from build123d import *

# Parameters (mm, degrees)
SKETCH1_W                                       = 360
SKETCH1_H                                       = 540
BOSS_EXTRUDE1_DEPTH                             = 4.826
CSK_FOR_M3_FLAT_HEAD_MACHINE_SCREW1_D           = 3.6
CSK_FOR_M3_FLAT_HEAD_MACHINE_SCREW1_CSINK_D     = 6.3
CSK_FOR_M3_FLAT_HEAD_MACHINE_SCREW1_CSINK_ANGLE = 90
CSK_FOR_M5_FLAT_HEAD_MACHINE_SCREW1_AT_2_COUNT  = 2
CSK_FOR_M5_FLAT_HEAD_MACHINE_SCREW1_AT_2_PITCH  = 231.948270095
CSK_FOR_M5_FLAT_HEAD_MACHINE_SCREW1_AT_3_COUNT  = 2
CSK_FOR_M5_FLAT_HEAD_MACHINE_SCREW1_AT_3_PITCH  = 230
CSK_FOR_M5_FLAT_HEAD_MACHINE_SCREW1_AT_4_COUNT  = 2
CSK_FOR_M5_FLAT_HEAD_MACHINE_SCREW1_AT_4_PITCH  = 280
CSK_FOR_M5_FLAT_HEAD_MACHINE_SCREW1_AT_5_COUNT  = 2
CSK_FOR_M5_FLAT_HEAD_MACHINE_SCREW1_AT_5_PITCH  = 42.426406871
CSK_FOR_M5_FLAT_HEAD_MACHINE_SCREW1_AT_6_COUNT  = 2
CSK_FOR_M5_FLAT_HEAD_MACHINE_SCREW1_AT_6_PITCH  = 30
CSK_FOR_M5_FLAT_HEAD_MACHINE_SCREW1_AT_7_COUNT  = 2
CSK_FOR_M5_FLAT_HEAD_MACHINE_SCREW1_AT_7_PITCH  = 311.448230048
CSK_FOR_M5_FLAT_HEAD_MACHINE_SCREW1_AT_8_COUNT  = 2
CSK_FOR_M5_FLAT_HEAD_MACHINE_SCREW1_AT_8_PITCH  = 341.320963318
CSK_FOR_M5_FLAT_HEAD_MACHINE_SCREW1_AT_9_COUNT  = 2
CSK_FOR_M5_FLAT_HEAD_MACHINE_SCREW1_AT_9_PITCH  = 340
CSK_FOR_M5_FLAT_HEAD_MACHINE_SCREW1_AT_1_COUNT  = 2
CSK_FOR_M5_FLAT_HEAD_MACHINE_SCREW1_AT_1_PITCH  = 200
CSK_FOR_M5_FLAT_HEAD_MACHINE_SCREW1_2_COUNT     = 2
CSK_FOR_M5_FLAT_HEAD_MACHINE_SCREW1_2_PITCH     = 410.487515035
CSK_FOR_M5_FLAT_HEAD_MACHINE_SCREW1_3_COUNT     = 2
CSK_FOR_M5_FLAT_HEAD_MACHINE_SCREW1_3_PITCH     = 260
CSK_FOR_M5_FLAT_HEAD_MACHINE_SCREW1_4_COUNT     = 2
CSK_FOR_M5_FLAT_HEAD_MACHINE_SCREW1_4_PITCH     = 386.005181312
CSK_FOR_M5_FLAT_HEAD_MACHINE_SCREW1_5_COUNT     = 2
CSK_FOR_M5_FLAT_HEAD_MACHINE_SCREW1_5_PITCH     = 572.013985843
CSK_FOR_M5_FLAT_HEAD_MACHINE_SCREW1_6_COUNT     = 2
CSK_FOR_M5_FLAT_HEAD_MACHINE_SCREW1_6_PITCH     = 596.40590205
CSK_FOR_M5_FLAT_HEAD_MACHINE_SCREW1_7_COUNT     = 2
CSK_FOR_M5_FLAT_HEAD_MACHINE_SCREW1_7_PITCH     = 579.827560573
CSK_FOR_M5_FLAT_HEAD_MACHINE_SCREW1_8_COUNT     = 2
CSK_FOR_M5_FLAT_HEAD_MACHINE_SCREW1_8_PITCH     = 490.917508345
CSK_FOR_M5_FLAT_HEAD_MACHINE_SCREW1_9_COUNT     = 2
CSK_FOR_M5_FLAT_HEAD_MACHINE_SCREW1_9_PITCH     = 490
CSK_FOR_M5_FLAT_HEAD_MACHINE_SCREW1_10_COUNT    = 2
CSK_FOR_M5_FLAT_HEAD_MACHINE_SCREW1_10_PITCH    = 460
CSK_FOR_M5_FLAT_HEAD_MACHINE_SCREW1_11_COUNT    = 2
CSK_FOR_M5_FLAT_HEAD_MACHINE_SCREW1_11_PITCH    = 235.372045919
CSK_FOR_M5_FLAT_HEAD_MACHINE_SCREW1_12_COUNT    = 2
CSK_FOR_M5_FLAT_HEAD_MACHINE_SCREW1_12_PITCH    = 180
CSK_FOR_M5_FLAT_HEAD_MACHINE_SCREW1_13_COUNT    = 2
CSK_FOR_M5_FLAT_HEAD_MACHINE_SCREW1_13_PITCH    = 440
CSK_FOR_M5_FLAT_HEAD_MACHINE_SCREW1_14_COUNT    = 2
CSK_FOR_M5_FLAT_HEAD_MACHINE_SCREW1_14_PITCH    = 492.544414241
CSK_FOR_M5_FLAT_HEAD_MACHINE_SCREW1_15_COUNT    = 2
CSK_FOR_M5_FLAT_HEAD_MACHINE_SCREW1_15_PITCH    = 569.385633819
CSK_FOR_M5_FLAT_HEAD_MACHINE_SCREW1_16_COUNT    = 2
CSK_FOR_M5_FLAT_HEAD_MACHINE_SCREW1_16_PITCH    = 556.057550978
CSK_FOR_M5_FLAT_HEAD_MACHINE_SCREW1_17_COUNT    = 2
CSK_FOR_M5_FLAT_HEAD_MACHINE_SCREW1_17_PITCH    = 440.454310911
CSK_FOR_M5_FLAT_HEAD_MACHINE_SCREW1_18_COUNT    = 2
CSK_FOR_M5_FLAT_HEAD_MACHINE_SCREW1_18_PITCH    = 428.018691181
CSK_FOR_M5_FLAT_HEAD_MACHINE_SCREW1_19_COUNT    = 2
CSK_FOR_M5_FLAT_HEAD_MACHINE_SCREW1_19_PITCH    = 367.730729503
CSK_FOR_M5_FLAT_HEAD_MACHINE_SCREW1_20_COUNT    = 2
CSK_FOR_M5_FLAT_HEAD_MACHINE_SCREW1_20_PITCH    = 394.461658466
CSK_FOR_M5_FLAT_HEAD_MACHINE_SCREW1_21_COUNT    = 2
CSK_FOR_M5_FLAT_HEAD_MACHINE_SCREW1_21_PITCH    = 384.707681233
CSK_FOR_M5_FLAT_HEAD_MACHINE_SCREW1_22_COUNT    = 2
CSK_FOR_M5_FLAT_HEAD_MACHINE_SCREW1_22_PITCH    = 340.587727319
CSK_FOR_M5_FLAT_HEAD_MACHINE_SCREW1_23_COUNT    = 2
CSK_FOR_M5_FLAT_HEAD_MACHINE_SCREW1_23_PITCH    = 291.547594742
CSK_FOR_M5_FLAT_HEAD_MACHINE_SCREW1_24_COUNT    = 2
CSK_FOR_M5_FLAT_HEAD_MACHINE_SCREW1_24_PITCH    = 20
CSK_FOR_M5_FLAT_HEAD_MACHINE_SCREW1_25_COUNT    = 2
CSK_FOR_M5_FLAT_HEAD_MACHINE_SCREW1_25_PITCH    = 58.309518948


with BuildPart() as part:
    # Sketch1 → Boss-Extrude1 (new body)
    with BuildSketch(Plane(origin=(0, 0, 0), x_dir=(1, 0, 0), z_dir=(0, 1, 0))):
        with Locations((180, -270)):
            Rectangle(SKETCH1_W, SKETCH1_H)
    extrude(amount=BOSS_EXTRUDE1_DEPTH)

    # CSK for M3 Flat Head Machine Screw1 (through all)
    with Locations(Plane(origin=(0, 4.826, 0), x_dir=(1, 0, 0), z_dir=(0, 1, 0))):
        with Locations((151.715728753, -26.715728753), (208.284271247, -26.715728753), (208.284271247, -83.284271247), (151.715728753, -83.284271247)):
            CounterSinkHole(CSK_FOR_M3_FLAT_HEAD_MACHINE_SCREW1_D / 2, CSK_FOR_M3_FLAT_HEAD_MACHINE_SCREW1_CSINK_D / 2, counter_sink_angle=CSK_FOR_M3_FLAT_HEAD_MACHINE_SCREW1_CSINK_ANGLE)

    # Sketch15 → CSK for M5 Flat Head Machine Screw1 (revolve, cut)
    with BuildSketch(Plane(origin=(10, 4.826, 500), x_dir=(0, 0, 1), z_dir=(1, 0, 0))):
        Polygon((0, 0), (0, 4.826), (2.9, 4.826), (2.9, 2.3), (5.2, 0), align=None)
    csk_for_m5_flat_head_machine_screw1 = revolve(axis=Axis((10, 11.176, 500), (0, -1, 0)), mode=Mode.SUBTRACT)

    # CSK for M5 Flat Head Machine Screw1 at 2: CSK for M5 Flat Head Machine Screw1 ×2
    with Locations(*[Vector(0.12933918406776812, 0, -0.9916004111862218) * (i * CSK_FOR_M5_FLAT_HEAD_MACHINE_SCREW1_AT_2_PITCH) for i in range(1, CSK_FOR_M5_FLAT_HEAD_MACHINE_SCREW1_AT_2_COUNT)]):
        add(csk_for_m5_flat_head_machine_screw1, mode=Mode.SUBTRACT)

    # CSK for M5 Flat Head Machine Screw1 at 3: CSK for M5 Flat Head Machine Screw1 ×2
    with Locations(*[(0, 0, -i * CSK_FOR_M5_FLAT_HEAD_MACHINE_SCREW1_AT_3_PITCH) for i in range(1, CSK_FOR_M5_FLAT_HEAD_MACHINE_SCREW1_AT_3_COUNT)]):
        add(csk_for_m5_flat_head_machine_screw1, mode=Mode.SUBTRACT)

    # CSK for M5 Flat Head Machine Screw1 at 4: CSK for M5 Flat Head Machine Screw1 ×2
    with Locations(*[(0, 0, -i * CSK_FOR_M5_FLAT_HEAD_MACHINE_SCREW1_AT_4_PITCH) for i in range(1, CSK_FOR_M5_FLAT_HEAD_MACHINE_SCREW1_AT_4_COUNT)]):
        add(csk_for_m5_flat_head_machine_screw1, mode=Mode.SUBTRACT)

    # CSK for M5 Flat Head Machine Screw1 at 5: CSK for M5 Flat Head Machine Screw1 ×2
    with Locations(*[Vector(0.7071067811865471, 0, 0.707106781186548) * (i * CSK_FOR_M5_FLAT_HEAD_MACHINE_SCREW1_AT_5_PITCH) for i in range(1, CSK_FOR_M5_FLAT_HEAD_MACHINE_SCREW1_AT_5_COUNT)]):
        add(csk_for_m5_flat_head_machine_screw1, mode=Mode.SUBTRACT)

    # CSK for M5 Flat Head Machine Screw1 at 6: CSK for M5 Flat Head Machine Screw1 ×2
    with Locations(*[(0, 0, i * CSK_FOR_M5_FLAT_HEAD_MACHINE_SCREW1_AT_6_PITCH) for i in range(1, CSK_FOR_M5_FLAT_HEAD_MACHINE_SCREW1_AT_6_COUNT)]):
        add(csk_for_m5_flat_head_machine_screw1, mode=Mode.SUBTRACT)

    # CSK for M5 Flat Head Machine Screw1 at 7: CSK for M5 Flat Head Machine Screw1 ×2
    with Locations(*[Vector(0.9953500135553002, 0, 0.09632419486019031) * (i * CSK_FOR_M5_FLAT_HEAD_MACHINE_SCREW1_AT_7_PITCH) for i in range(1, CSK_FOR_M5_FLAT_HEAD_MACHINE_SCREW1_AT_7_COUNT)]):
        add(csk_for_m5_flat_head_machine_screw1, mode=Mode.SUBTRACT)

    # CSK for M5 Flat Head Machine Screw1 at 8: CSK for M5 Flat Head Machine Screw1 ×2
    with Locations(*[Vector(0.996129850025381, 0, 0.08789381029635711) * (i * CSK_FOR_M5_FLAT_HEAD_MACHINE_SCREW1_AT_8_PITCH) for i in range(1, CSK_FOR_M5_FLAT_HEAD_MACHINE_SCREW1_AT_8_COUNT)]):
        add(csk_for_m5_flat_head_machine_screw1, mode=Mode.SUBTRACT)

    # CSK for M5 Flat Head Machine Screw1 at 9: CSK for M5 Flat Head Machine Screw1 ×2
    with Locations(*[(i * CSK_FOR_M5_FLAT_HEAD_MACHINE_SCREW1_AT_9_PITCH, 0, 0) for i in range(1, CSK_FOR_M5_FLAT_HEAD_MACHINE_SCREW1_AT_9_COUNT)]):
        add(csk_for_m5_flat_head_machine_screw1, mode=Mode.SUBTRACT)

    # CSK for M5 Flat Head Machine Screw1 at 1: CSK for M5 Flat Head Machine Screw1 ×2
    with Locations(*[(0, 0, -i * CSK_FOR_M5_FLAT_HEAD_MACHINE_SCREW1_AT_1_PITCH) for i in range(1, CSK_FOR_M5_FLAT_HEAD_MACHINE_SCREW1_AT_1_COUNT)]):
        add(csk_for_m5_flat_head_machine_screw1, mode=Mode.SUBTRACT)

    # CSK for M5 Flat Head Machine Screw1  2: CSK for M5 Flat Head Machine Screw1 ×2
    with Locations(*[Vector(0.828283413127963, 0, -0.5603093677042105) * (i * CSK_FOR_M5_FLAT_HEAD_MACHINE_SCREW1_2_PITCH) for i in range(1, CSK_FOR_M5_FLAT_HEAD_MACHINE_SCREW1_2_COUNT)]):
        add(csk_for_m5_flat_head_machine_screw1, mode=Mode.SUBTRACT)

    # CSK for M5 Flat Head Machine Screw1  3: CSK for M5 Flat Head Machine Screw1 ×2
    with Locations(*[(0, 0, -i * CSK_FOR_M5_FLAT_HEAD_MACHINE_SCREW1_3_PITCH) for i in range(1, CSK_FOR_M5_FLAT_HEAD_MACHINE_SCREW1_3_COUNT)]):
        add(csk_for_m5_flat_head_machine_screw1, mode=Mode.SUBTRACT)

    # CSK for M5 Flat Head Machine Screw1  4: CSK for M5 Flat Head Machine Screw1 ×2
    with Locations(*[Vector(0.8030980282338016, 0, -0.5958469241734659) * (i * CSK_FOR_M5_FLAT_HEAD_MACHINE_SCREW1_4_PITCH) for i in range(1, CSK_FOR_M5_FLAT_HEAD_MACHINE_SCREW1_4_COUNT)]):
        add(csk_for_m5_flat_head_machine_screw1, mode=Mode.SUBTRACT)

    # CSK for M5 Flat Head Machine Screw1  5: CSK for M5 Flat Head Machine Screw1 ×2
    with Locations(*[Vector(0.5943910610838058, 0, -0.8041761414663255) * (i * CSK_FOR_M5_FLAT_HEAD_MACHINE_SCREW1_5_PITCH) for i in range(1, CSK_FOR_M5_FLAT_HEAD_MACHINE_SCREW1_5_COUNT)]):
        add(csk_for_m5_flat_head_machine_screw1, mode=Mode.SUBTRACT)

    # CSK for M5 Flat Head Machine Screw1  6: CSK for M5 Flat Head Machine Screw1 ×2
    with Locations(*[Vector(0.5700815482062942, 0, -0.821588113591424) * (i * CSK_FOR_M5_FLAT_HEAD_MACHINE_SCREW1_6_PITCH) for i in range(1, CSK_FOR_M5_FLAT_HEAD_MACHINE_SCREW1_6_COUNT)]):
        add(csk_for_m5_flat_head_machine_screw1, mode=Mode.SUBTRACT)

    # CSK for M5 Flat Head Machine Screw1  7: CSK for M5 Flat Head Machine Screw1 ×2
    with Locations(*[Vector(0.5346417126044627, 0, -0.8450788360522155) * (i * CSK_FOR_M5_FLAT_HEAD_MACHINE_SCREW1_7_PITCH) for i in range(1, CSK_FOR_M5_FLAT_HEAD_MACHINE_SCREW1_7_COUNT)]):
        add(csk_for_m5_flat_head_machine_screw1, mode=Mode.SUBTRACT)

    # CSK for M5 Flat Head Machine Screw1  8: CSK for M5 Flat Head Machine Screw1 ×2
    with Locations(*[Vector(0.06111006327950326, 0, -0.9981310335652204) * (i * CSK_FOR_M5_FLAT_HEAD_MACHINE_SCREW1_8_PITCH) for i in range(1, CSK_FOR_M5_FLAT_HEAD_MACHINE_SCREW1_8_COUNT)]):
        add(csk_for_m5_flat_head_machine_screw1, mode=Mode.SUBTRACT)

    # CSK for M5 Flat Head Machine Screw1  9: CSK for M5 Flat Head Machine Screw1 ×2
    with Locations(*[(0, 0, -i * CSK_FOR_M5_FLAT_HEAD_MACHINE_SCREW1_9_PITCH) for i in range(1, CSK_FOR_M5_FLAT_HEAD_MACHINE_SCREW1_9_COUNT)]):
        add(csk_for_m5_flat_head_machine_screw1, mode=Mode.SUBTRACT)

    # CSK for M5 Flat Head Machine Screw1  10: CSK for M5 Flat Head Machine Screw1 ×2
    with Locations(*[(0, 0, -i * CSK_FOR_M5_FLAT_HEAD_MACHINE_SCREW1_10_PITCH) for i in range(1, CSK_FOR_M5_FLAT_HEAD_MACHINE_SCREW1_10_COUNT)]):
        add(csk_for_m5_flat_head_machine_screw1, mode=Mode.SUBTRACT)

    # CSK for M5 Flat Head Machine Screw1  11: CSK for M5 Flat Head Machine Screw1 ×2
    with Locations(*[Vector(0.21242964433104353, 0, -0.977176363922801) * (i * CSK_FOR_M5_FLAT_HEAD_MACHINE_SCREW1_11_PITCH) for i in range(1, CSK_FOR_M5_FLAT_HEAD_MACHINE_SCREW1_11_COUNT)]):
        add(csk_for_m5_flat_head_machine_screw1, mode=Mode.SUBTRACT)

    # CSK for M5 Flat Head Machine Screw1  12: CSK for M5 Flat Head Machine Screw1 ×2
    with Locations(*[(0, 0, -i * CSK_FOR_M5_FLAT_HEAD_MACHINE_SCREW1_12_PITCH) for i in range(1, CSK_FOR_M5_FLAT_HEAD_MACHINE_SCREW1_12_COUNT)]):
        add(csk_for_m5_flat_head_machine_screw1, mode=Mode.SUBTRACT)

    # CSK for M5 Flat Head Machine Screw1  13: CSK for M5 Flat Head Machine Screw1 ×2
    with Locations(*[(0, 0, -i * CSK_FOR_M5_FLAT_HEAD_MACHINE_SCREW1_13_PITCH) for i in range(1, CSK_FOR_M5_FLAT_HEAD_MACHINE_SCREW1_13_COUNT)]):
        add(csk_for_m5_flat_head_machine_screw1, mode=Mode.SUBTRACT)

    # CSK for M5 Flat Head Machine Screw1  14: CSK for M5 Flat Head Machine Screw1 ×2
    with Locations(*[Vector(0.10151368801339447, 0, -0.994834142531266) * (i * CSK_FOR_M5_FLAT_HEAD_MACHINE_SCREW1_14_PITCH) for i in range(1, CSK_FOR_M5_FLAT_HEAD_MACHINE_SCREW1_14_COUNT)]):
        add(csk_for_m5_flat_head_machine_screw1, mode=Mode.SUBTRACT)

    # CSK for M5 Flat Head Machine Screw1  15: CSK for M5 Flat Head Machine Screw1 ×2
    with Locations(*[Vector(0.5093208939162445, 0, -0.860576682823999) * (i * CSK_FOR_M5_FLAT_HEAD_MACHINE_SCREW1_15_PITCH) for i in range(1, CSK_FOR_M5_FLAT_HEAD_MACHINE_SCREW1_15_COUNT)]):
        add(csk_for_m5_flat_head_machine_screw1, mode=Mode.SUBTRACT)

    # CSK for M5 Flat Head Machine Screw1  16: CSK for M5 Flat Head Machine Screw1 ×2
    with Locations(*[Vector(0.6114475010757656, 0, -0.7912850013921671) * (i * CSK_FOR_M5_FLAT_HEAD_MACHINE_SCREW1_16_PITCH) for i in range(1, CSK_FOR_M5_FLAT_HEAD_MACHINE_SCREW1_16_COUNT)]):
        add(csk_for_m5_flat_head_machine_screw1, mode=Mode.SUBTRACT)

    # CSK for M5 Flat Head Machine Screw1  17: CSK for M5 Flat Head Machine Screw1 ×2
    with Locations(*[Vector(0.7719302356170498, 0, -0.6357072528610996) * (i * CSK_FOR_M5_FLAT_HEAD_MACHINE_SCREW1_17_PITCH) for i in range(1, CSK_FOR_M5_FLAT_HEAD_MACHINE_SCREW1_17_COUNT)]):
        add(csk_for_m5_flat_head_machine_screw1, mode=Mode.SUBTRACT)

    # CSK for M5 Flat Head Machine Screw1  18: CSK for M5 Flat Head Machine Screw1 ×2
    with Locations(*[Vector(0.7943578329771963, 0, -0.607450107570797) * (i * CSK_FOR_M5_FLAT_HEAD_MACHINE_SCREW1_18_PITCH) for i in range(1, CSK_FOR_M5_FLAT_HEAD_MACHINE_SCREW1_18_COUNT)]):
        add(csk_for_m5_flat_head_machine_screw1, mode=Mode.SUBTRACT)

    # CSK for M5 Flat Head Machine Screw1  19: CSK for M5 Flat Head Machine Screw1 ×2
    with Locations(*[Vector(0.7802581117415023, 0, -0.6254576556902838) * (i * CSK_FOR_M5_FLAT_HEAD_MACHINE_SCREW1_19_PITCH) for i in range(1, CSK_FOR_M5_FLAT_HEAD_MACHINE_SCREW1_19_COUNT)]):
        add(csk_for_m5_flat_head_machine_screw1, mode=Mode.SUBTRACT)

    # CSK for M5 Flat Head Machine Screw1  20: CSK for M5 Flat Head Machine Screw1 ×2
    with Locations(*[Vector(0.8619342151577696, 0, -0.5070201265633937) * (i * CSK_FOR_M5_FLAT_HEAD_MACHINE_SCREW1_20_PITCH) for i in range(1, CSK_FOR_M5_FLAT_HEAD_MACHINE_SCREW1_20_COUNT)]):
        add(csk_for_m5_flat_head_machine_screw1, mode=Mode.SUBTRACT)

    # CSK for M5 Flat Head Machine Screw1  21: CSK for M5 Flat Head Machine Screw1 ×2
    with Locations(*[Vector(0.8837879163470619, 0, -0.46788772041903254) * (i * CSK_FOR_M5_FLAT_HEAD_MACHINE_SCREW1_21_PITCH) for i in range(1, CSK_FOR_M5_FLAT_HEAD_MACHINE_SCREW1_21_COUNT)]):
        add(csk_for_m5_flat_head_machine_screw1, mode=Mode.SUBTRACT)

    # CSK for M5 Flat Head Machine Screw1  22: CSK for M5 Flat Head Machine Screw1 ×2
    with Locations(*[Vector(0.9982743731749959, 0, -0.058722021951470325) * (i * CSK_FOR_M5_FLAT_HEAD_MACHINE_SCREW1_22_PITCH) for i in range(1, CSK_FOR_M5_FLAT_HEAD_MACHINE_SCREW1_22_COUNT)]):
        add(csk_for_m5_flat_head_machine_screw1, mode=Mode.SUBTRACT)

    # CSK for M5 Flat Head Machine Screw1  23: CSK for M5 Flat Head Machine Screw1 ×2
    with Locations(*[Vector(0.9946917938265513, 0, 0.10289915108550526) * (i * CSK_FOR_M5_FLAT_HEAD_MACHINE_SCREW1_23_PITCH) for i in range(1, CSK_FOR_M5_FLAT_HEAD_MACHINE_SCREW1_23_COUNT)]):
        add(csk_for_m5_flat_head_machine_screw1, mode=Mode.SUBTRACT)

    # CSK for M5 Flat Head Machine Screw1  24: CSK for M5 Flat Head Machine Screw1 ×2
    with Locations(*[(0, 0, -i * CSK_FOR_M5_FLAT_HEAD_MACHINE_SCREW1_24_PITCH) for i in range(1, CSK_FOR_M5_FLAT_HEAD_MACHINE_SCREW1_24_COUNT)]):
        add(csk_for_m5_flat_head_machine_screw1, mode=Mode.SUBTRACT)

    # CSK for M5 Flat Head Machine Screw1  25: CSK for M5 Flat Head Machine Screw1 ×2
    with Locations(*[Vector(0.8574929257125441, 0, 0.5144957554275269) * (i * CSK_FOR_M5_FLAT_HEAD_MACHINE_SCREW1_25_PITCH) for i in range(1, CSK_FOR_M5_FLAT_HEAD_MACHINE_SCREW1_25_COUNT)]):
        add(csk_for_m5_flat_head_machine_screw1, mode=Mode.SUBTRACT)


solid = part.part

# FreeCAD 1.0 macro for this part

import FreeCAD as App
import Part
import Sketcher
Q = App.Units.Quantity

doc = App.newDocument("Part")
body = doc.addObject("PartDesign::Body", "Body")

sketch1 = body.newObject("Sketcher::SketchObject", "Sketch")
sketch1.AttachmentSupport = (doc.getObject("XZ_Plane"), [""])
sketch1.MapMode = "FlatFace"
sketch1.addGeometry(Part.LineSegment(App.Vector(0, 0, 0), App.Vector(0, 540, 0)), False)
sketch1.addGeometry(Part.LineSegment(App.Vector(0, 540, 0), App.Vector(360, 540, 0)), False)
sketch1.addGeometry(Part.LineSegment(App.Vector(360, 540, 0), App.Vector(360, 0, 0)), False)
sketch1.addGeometry(Part.LineSegment(App.Vector(360, 0, 0), App.Vector(0, 0, 0)), False)
sketch1.addConstraint(Sketcher.Constraint("Coincident", 0, 2, 1, 1))
sketch1.addConstraint(Sketcher.Constraint("Coincident", 1, 2, 2, 1))
sketch1.addConstraint(Sketcher.Constraint("Coincident", 2, 2, 3, 1))
sketch1.addConstraint(Sketcher.Constraint("Coincident", 3, 2, 0, 1))
sketch1.addConstraint(Sketcher.Constraint("Vertical", 0))
sketch1.addConstraint(Sketcher.Constraint("Horizontal", 1))
sketch1.addConstraint(Sketcher.Constraint("Vertical", 2))
sketch1.addConstraint(Sketcher.Constraint("Horizontal", 3))
sketch1.addConstraint(Sketcher.Constraint("Coincident", 3, 2, -1, 1))
sketch1.addConstraint(Sketcher.Constraint("DistanceX", 1, 1, 1, 2, 360.0))
sketch1.addConstraint(Sketcher.Constraint("DistanceY", 0, 1, 0, 2, 540.0))
pad1 = body.newObject("PartDesign::Pad", "Pad")
pad1.Profile = sketch1
pad1.Length = 4.826
pad1.Reversed = True

sketch2 = body.newObject("Sketcher::SketchObject", "Sketch001")
sketch2.AttachmentSupport = (doc.getObject("XZ_Plane"), [""])
sketch2.MapMode = "FlatFace"
sketch2.AttachmentOffset = App.Placement(App.Vector(0, 0, -4.826), App.Rotation())
sketch2.addGeometry(Part.Circle(App.Vector(151.7, 26.7, 0), App.Vector(0, 0, 1), 1.8), False)
sketch2.addGeometry(Part.Circle(App.Vector(208.3, 26.7, 0), App.Vector(0, 0, 1), 1.8), False)
sketch2.addGeometry(Part.Circle(App.Vector(208.3, 83.3, 0), App.Vector(0, 0, 1), 1.8), False)
sketch2.addGeometry(Part.Circle(App.Vector(151.7, 83.3, 0), App.Vector(0, 0, 1), 1.8), False)
sketch2.addConstraint(Sketcher.Constraint("Equal", 0, 1))
sketch2.addConstraint(Sketcher.Constraint("Equal", 1, 2))
sketch2.addConstraint(Sketcher.Constraint("Equal", 2, 3))
sketch2.addConstraint(Sketcher.Constraint("Horizontal", 0, 3, 1, 3))
sketch2.addConstraint(Sketcher.Constraint("Horizontal", 2, 3, 3, 3))
sketch2.addConstraint(Sketcher.Constraint("Vertical", 1, 3, 2, 3))
sketch2.addConstraint(Sketcher.Constraint("Vertical", 0, 3, 3, 3))
sketch2.addConstraint(Sketcher.Constraint("Diameter", 0, 3.6))
sketch2.addConstraint(Sketcher.Constraint("DistanceX", -1, 1, 0, 3, 151.715729))
sketch2.addConstraint(Sketcher.Constraint("DistanceY", -1, 1, 0, 3, 26.715729))
sketch2.addConstraint(Sketcher.Constraint("DistanceX", -1, 1, 1, 3, 208.284271))
sketch2.addConstraint(Sketcher.Constraint("DistanceY", -1, 1, 2, 3, 83.284271))
doc.recompute()
hole = body.newObject("PartDesign::Hole", "Hole")
hole.Profile = sketch2
hole.ThreadType = "None"
hole.Diameter = 3.6
hole.DepthType = "ThroughAll"
hole.HoleCutType = "Countersink"
hole.HoleCutDiameter = 6.3
hole.HoleCutCountersinkAngle = 90
hole.Reversed = True

sketch3 = body.newObject("Sketcher::SketchObject", "Sketch002")
sketch3.AttachmentSupport = (doc.getObject("YZ_Plane"), [""])
sketch3.MapMode = "FlatFace"
sketch3.AttachmentOffset = App.Placement(App.Vector(0, 0, 10), App.Rotation())
sketch3.addGeometry(Part.LineSegment(App.Vector(0, 500, 0), App.Vector(4.8, 500, 0)), False)
sketch3.addGeometry(Part.LineSegment(App.Vector(4.8, 500, 0), App.Vector(4.8, 505.2, 0)), False)
sketch3.addGeometry(Part.LineSegment(App.Vector(4.8, 505.2, 0), App.Vector(2.5, 502.9, 0)), False)
sketch3.addGeometry(Part.LineSegment(App.Vector(2.5, 502.9, 0), App.Vector(0, 502.9, 0)), False)
sketch3.addGeometry(Part.LineSegment(App.Vector(0, 502.9, 0), App.Vector(0, 500, 0)), False)
sketch3.addGeometry(Part.LineSegment(App.Vector(4.8, 500, 0), App.Vector(0, 500, 0)), True)
sketch3.addConstraint(Sketcher.Constraint("Coincident", 0, 2, 1, 1))
sketch3.addConstraint(Sketcher.Constraint("Coincident", 1, 2, 2, 1))
sketch3.addConstraint(Sketcher.Constraint("Coincident", 2, 2, 3, 1))
sketch3.addConstraint(Sketcher.Constraint("Coincident", 3, 2, 4, 1))
sketch3.addConstraint(Sketcher.Constraint("Coincident", 4, 2, 0, 1))
sketch3.addConstraint(Sketcher.Constraint("Horizontal", 0))
sketch3.addConstraint(Sketcher.Constraint("Vertical", 1))
sketch3.addConstraint(Sketcher.Constraint("Horizontal", 3))
sketch3.addConstraint(Sketcher.Constraint("Vertical", 4))
sketch3.addConstraint(Sketcher.Constraint("Horizontal", 5))
sketch3.addConstraint(Sketcher.Constraint("Coincident", 5, 1, 0, 2))
sketch3.addConstraint(Sketcher.Constraint("PointOnObject", 3, 2, -2))
sketch3.addConstraint(Sketcher.Constraint("PointOnObject", 5, 2, -2))
sketch3.addConstraint(Sketcher.Constraint("Angle", 2, Q("-135 deg")))
sketch3.addConstraint(Sketcher.Constraint("DistanceY", 1, 1, 1, 2, 5.2))
sketch3.addConstraint(Sketcher.Constraint("DistanceY", 4, 2, 4, 1, 2.9))
sketch3.addConstraint(Sketcher.Constraint("DistanceY", -1, 1, 0, 2, 500.0))
sketch3.addConstraint(Sketcher.Constraint("DistanceX", 0, 1, 0, 2, 4.826))
groove = body.newObject("PartDesign::Groove", "Groove")
groove.Profile = sketch3
groove.ReferenceAxis = (sketch3, ["Axis0"])
groove.Angle = 360
doc.recompute()

datumline = body.newObject("PartDesign::Line", "DatumLine")
datumline.Placement = App.Placement(App.Vector(0, 0, 0), App.Rotation(App.Vector(0, 0, 1), App.Vector(0.129339184, 0, -0.991600411)))
linearpattern = body.newObject("PartDesign::LinearPattern", "LinearPattern")
linearpattern.Originals = [groove]
linearpattern.Direction = (datumline, [""])
linearpattern.Mode = "offset"
linearpattern.Offset = 231.94827
linearpattern.Occurrences = 2
body.Tip = linearpattern
doc.recompute()

linearpattern2 = body.newObject("PartDesign::LinearPattern", "LinearPattern001")
linearpattern2.Originals = [groove]
linearpattern2.Direction = (doc.getObject("Z_Axis"), [""])
linearpattern2.Mode = "offset"
linearpattern2.Offset = 230
linearpattern2.Occurrences = 2
linearpattern2.Reversed = True
body.Tip = linearpattern2
doc.recompute()

linearpattern3 = body.newObject("PartDesign::LinearPattern", "LinearPattern002")
linearpattern3.Originals = [groove]
linearpattern3.Direction = (doc.getObject("Z_Axis"), [""])
linearpattern3.Mode = "offset"
linearpattern3.Offset = 280
linearpattern3.Occurrences = 2
linearpattern3.Reversed = True
body.Tip = linearpattern3
doc.recompute()

datumline2 = body.newObject("PartDesign::Line", "DatumLine001")
datumline2.Placement = App.Placement(App.Vector(0, 0, 0), App.Rotation(App.Vector(0, 0, 1), App.Vector(0.707106781, 0, 0.707106781)))
linearpattern4 = body.newObject("PartDesign::LinearPattern", "LinearPattern003")
linearpattern4.Originals = [groove]
linearpattern4.Direction = (datumline2, [""])
linearpattern4.Mode = "offset"
linearpattern4.Offset = 42.426407
linearpattern4.Occurrences = 2
body.Tip = linearpattern4
doc.recompute()

linearpattern5 = body.newObject("PartDesign::LinearPattern", "LinearPattern004")
linearpattern5.Originals = [groove]
linearpattern5.Direction = (doc.getObject("Z_Axis"), [""])
linearpattern5.Mode = "offset"
linearpattern5.Offset = 30
linearpattern5.Occurrences = 2
body.Tip = linearpattern5
doc.recompute()

datumline3 = body.newObject("PartDesign::Line", "DatumLine002")
datumline3.Placement = App.Placement(App.Vector(0, 0, 0), App.Rotation(App.Vector(0, 0, 1), App.Vector(0.995350014, 0, 0.096324195)))
linearpattern6 = body.newObject("PartDesign::LinearPattern", "LinearPattern005")
linearpattern6.Originals = [groove]
linearpattern6.Direction = (datumline3, [""])
linearpattern6.Mode = "offset"
linearpattern6.Offset = 311.44823
linearpattern6.Occurrences = 2
body.Tip = linearpattern6
doc.recompute()

datumline4 = body.newObject("PartDesign::Line", "DatumLine003")
datumline4.Placement = App.Placement(App.Vector(0, 0, 0), App.Rotation(App.Vector(0, 0, 1), App.Vector(0.99612985, 0, 0.08789381)))
linearpattern7 = body.newObject("PartDesign::LinearPattern", "LinearPattern006")
linearpattern7.Originals = [groove]
linearpattern7.Direction = (datumline4, [""])
linearpattern7.Mode = "offset"
linearpattern7.Offset = 341.320963
linearpattern7.Occurrences = 2
body.Tip = linearpattern7
doc.recompute()

linearpattern8 = body.newObject("PartDesign::LinearPattern", "LinearPattern007")
linearpattern8.Originals = [groove]
linearpattern8.Direction = (doc.getObject("X_Axis"), [""])
linearpattern8.Mode = "offset"
linearpattern8.Offset = 340
linearpattern8.Occurrences = 2
body.Tip = linearpattern8
doc.recompute()

linearpattern9 = body.newObject("PartDesign::LinearPattern", "LinearPattern008")
linearpattern9.Originals = [groove]
linearpattern9.Direction = (doc.getObject("Z_Axis"), [""])
linearpattern9.Mode = "offset"
linearpattern9.Offset = 200
linearpattern9.Occurrences = 2
linearpattern9.Reversed = True
body.Tip = linearpattern9
doc.recompute()

datumline5 = body.newObject("PartDesign::Line", "DatumLine004")
datumline5.Placement = App.Placement(App.Vector(0, 0, 0), App.Rotation(App.Vector(0, 0, 1), App.Vector(0.828283413, 0, -0.560309368)))
linearpattern10 = body.newObject("PartDesign::LinearPattern", "LinearPattern009")
linearpattern10.Originals = [groove]
linearpattern10.Direction = (datumline5, [""])
linearpattern10.Mode = "offset"
linearpattern10.Offset = 410.487515
linearpattern10.Occurrences = 2
body.Tip = linearpattern10
doc.recompute()

linearpattern11 = body.newObject("PartDesign::LinearPattern", "LinearPattern010")
linearpattern11.Originals = [groove]
linearpattern11.Direction = (doc.getObject("Z_Axis"), [""])
linearpattern11.Mode = "offset"
linearpattern11.Offset = 260
linearpattern11.Occurrences = 2
linearpattern11.Reversed = True
body.Tip = linearpattern11
doc.recompute()

datumline6 = body.newObject("PartDesign::Line", "DatumLine005")
datumline6.Placement = App.Placement(App.Vector(0, 0, 0), App.Rotation(App.Vector(0, 0, 1), App.Vector(0.803098028, 0, -0.595846924)))
linearpattern12 = body.newObject("PartDesign::LinearPattern", "LinearPattern011")
linearpattern12.Originals = [groove]
linearpattern12.Direction = (datumline6, [""])
linearpattern12.Mode = "offset"
linearpattern12.Offset = 386.005181
linearpattern12.Occurrences = 2
body.Tip = linearpattern12
doc.recompute()

datumline7 = body.newObject("PartDesign::Line", "DatumLine006")
datumline7.Placement = App.Placement(App.Vector(0, 0, 0), App.Rotation(App.Vector(0, 0, 1), App.Vector(0.594391061, 0, -0.804176141)))
linearpattern13 = body.newObject("PartDesign::LinearPattern", "LinearPattern012")
linearpattern13.Originals = [groove]
linearpattern13.Direction = (datumline7, [""])
linearpattern13.Mode = "offset"
linearpattern13.Offset = 572.013986
linearpattern13.Occurrences = 2
body.Tip = linearpattern13
doc.recompute()

datumline8 = body.newObject("PartDesign::Line", "DatumLine007")
datumline8.Placement = App.Placement(App.Vector(0, 0, 0), App.Rotation(App.Vector(0, 0, 1), App.Vector(0.570081548, 0, -0.821588114)))
linearpattern14 = body.newObject("PartDesign::LinearPattern", "LinearPattern013")
linearpattern14.Originals = [groove]
linearpattern14.Direction = (datumline8, [""])
linearpattern14.Mode = "offset"
linearpattern14.Offset = 596.405902
linearpattern14.Occurrences = 2
body.Tip = linearpattern14
doc.recompute()

datumline9 = body.newObject("PartDesign::Line", "DatumLine008")
datumline9.Placement = App.Placement(App.Vector(0, 0, 0), App.Rotation(App.Vector(0, 0, 1), App.Vector(0.534641713, 0, -0.845078836)))
linearpattern15 = body.newObject("PartDesign::LinearPattern", "LinearPattern014")
linearpattern15.Originals = [groove]
linearpattern15.Direction = (datumline9, [""])
linearpattern15.Mode = "offset"
linearpattern15.Offset = 579.827561
linearpattern15.Occurrences = 2
body.Tip = linearpattern15
doc.recompute()

datumline10 = body.newObject("PartDesign::Line", "DatumLine009")
datumline10.Placement = App.Placement(App.Vector(0, 0, 0), App.Rotation(App.Vector(0, 0, 1), App.Vector(0.061110063, 0, -0.998131034)))
linearpattern16 = body.newObject("PartDesign::LinearPattern", "LinearPattern015")
linearpattern16.Originals = [groove]
linearpattern16.Direction = (datumline10, [""])
linearpattern16.Mode = "offset"
linearpattern16.Offset = 490.917508
linearpattern16.Occurrences = 2
body.Tip = linearpattern16
doc.recompute()

linearpattern17 = body.newObject("PartDesign::LinearPattern", "LinearPattern016")
linearpattern17.Originals = [groove]
linearpattern17.Direction = (doc.getObject("Z_Axis"), [""])
linearpattern17.Mode = "offset"
linearpattern17.Offset = 490
linearpattern17.Occurrences = 2
linearpattern17.Reversed = True
body.Tip = linearpattern17
doc.recompute()

linearpattern18 = body.newObject("PartDesign::LinearPattern", "LinearPattern017")
linearpattern18.Originals = [groove]
linearpattern18.Direction = (doc.getObject("Z_Axis"), [""])
linearpattern18.Mode = "offset"
linearpattern18.Offset = 460
linearpattern18.Occurrences = 2
linearpattern18.Reversed = True
body.Tip = linearpattern18
doc.recompute()

datumline11 = body.newObject("PartDesign::Line", "DatumLine010")
datumline11.Placement = App.Placement(App.Vector(0, 0, 0), App.Rotation(App.Vector(0, 0, 1), App.Vector(0.212429644, 0, -0.977176364)))
linearpattern19 = body.newObject("PartDesign::LinearPattern", "LinearPattern018")
linearpattern19.Originals = [groove]
linearpattern19.Direction = (datumline11, [""])
linearpattern19.Mode = "offset"
linearpattern19.Offset = 235.372046
linearpattern19.Occurrences = 2
body.Tip = linearpattern19
doc.recompute()

linearpattern20 = body.newObject("PartDesign::LinearPattern", "LinearPattern019")
linearpattern20.Originals = [groove]
linearpattern20.Direction = (doc.getObject("Z_Axis"), [""])
linearpattern20.Mode = "offset"
linearpattern20.Offset = 180
linearpattern20.Occurrences = 2
linearpattern20.Reversed = True
body.Tip = linearpattern20
doc.recompute()

linearpattern21 = body.newObject("PartDesign::LinearPattern", "LinearPattern020")
linearpattern21.Originals = [groove]
linearpattern21.Direction = (doc.getObject("Z_Axis"), [""])
linearpattern21.Mode = "offset"
linearpattern21.Offset = 440
linearpattern21.Occurrences = 2
linearpattern21.Reversed = True
body.Tip = linearpattern21
doc.recompute()

datumline12 = body.newObject("PartDesign::Line", "DatumLine011")
datumline12.Placement = App.Placement(App.Vector(0, 0, 0), App.Rotation(App.Vector(0, 0, 1), App.Vector(0.101513688, 0, -0.994834143)))
linearpattern22 = body.newObject("PartDesign::LinearPattern", "LinearPattern021")
linearpattern22.Originals = [groove]
linearpattern22.Direction = (datumline12, [""])
linearpattern22.Mode = "offset"
linearpattern22.Offset = 492.544414
linearpattern22.Occurrences = 2
body.Tip = linearpattern22
doc.recompute()

datumline13 = body.newObject("PartDesign::Line", "DatumLine012")
datumline13.Placement = App.Placement(App.Vector(0, 0, 0), App.Rotation(App.Vector(0, 0, 1), App.Vector(0.509320894, 0, -0.860576683)))
linearpattern23 = body.newObject("PartDesign::LinearPattern", "LinearPattern022")
linearpattern23.Originals = [groove]
linearpattern23.Direction = (datumline13, [""])
linearpattern23.Mode = "offset"
linearpattern23.Offset = 569.385634
linearpattern23.Occurrences = 2
body.Tip = linearpattern23
doc.recompute()

datumline14 = body.newObject("PartDesign::Line", "DatumLine013")
datumline14.Placement = App.Placement(App.Vector(0, 0, 0), App.Rotation(App.Vector(0, 0, 1), App.Vector(0.611447501, 0, -0.791285001)))
linearpattern24 = body.newObject("PartDesign::LinearPattern", "LinearPattern023")
linearpattern24.Originals = [groove]
linearpattern24.Direction = (datumline14, [""])
linearpattern24.Mode = "offset"
linearpattern24.Offset = 556.057551
linearpattern24.Occurrences = 2
body.Tip = linearpattern24
doc.recompute()

datumline15 = body.newObject("PartDesign::Line", "DatumLine014")
datumline15.Placement = App.Placement(App.Vector(0, 0, 0), App.Rotation(App.Vector(0, 0, 1), App.Vector(0.771930236, 0, -0.635707253)))
linearpattern25 = body.newObject("PartDesign::LinearPattern", "LinearPattern024")
linearpattern25.Originals = [groove]
linearpattern25.Direction = (datumline15, [""])
linearpattern25.Mode = "offset"
linearpattern25.Offset = 440.454311
linearpattern25.Occurrences = 2
body.Tip = linearpattern25
doc.recompute()

datumline16 = body.newObject("PartDesign::Line", "DatumLine015")
datumline16.Placement = App.Placement(App.Vector(0, 0, 0), App.Rotation(App.Vector(0, 0, 1), App.Vector(0.794357833, 0, -0.607450108)))
linearpattern26 = body.newObject("PartDesign::LinearPattern", "LinearPattern025")
linearpattern26.Originals = [groove]
linearpattern26.Direction = (datumline16, [""])
linearpattern26.Mode = "offset"
linearpattern26.Offset = 428.018691
linearpattern26.Occurrences = 2
body.Tip = linearpattern26
doc.recompute()

datumline17 = body.newObject("PartDesign::Line", "DatumLine016")
datumline17.Placement = App.Placement(App.Vector(0, 0, 0), App.Rotation(App.Vector(0, 0, 1), App.Vector(0.780258112, 0, -0.625457656)))
linearpattern27 = body.newObject("PartDesign::LinearPattern", "LinearPattern026")
linearpattern27.Originals = [groove]
linearpattern27.Direction = (datumline17, [""])
linearpattern27.Mode = "offset"
linearpattern27.Offset = 367.73073
linearpattern27.Occurrences = 2
body.Tip = linearpattern27
doc.recompute()

datumline18 = body.newObject("PartDesign::Line", "DatumLine017")
datumline18.Placement = App.Placement(App.Vector(0, 0, 0), App.Rotation(App.Vector(0, 0, 1), App.Vector(0.861934215, 0, -0.507020127)))
linearpattern28 = body.newObject("PartDesign::LinearPattern", "LinearPattern027")
linearpattern28.Originals = [groove]
linearpattern28.Direction = (datumline18, [""])
linearpattern28.Mode = "offset"
linearpattern28.Offset = 394.461658
linearpattern28.Occurrences = 2
body.Tip = linearpattern28
doc.recompute()

datumline19 = body.newObject("PartDesign::Line", "DatumLine018")
datumline19.Placement = App.Placement(App.Vector(0, 0, 0), App.Rotation(App.Vector(0, 0, 1), App.Vector(0.883787916, 0, -0.46788772)))
linearpattern29 = body.newObject("PartDesign::LinearPattern", "LinearPattern028")
linearpattern29.Originals = [groove]
linearpattern29.Direction = (datumline19, [""])
linearpattern29.Mode = "offset"
linearpattern29.Offset = 384.707681
linearpattern29.Occurrences = 2
body.Tip = linearpattern29
doc.recompute()

datumline20 = body.newObject("PartDesign::Line", "DatumLine019")
datumline20.Placement = App.Placement(App.Vector(0, 0, 0), App.Rotation(App.Vector(0, 0, 1), App.Vector(0.998274373, 0, -0.058722022)))
linearpattern30 = body.newObject("PartDesign::LinearPattern", "LinearPattern029")
linearpattern30.Originals = [groove]
linearpattern30.Direction = (datumline20, [""])
linearpattern30.Mode = "offset"
linearpattern30.Offset = 340.587727
linearpattern30.Occurrences = 2
body.Tip = linearpattern30
doc.recompute()

datumline21 = body.newObject("PartDesign::Line", "DatumLine020")
datumline21.Placement = App.Placement(App.Vector(0, 0, 0), App.Rotation(App.Vector(0, 0, 1), App.Vector(0.994691794, 0, 0.102899151)))
linearpattern31 = body.newObject("PartDesign::LinearPattern", "LinearPattern030")
linearpattern31.Originals = [groove]
linearpattern31.Direction = (datumline21, [""])
linearpattern31.Mode = "offset"
linearpattern31.Offset = 291.547595
linearpattern31.Occurrences = 2
body.Tip = linearpattern31
doc.recompute()

linearpattern32 = body.newObject("PartDesign::LinearPattern", "LinearPattern031")
linearpattern32.Originals = [groove]
linearpattern32.Direction = (doc.getObject("Z_Axis"), [""])
linearpattern32.Mode = "offset"
linearpattern32.Offset = 20
linearpattern32.Occurrences = 2
linearpattern32.Reversed = True
body.Tip = linearpattern32
doc.recompute()

datumline22 = body.newObject("PartDesign::Line", "DatumLine021")
datumline22.Placement = App.Placement(App.Vector(0, 0, 0), App.Rotation(App.Vector(0, 0, 1), App.Vector(0.857492926, 0, 0.514495755)))
linearpattern33 = body.newObject("PartDesign::LinearPattern", "LinearPattern032")
linearpattern33.Originals = [groove]
linearpattern33.Direction = (datumline22, [""])
linearpattern33.Mode = "offset"
linearpattern33.Offset = 58.309519
linearpattern33.Occurrences = 2
body.Tip = linearpattern33

doc.recompute()
